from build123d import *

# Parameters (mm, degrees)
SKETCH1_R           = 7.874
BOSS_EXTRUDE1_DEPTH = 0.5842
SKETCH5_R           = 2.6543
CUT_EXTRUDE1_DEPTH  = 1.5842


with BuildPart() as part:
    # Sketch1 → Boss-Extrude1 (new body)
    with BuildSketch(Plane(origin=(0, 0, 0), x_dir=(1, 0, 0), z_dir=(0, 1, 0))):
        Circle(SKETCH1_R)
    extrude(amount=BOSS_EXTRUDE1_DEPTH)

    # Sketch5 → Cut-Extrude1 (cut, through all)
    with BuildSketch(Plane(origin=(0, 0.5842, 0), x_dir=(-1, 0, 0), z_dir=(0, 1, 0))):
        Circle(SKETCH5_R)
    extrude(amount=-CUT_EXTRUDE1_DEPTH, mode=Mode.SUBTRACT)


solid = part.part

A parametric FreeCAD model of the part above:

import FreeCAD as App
import Part
import Sketcher

V = App.Vector
Q = App.Units.Quantity

doc = App.newDocument("Part")
body = doc.addObject("PartDesign::Body", "Body")

sketch1 = body.newObject("Sketcher::SketchObject", "Sketch")
sketch1.AttachmentSupport = (doc.getObject("XZ_Plane"), [""])
sketch1.MapMode = "FlatFace"
sketch1.addGeometry(Part.Circle(V(0, 0, 0), V(0, 0, 1), 8), False)
sketch1.addConstraint([
    Sketcher.Constraint("Coincident", 0, 3, -1, 1),
    Sketcher.Constraint("Diameter", 0, Q("0.62 in")),
])
pad1 = body.newObject("PartDesign::Pad", "Pad")
pad1.Profile = sketch1
pad1.Length = Q("0.023 in")
pad1.Reversed = True

sketch2 = body.newObject("Sketcher::SketchObject", "Sketch001")
sketch2.AttachmentSupport = (doc.getObject("XZ_Plane"), [""])
sketch2.MapMode = "FlatFace"
sketch2.AttachmentOffset = App.Placement(V(0, 0, -0.023 * 25.4), App.Rotation())
sketch2.addGeometry(Part.Circle(V(0, 0, 0), V(0, 0, 1), 2.7), False)
sketch2.addConstraint([
    Sketcher.Constraint("Coincident", 0, 3, -1, 1),
    Sketcher.Constraint("Diameter", 0, Q("0.209 in")),
])
pocket1 = body.newObject("PartDesign::Pocket", "Pocket")
pocket1.Profile = sketch2
pocket1.Type = "ThroughAll"
pocket1.Reversed = True

doc.recompute()
